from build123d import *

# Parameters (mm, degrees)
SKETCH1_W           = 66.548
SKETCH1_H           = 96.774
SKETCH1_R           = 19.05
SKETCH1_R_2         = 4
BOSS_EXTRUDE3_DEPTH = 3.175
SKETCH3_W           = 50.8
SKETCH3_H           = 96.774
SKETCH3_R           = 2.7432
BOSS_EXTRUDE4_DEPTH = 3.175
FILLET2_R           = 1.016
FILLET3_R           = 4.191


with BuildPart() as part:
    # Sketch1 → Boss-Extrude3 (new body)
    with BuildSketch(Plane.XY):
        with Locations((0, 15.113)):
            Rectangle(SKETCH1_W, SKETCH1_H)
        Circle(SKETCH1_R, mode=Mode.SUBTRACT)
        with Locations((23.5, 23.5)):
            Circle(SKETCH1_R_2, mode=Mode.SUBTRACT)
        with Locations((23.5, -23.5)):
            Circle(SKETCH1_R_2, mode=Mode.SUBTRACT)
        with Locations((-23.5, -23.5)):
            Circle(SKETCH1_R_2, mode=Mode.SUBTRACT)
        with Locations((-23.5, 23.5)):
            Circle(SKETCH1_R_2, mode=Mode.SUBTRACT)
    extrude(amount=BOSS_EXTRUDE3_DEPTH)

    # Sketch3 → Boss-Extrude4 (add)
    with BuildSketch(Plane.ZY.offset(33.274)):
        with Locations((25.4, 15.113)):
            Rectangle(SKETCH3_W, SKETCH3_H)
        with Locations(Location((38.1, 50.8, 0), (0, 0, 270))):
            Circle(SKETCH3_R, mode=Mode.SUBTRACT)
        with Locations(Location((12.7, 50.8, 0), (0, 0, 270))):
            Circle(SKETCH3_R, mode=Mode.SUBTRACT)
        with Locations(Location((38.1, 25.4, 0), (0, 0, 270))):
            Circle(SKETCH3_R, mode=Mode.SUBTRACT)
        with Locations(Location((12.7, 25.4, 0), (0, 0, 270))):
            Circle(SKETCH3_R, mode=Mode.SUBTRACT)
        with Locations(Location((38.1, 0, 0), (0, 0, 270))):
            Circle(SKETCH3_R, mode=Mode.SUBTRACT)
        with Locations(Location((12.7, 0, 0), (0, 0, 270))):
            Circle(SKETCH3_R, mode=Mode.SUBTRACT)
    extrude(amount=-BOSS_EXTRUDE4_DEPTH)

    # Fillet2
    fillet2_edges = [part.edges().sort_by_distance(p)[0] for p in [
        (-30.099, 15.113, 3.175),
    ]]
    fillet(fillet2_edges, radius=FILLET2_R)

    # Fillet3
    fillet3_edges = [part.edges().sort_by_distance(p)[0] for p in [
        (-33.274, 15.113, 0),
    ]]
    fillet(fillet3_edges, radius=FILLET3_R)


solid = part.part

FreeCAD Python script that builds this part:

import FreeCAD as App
import Part
import Sketcher
Q = App.Units.Quantity


def edges_at(feature, points):
    """Names of the edges that pass closest to the given points."""
    edges = feature.Shape.Edges
    near = lambda p: min(range(len(edges)), key=lambda i: edges[i].distToShape(Part.Vertex(*p))[0])
    return sorted({f"Edge{near(p) + 1}" for p in points})

doc = App.newDocument("Part")
body = doc.addObject("PartDesign::Body", "Body")

sketch1 = doc.addObject("Sketcher::SketchObject", "Sketch")
body.addObject(sketch1)
sketch1.AttachmentSupport = (doc.XY_Plane, [""])
sketch1.MapMode = "FlatFace"
sketch1.addGeometry(Part.LineSegment(App.Vector(-33.274, 63.5, 0), App.Vector(-33.274, -33.274, 0)), False)
sketch1.addGeometry(Part.LineSegment(App.Vector(-33.274, -33.274, 0), App.Vector(33.274, -33.274, 0)), False)
sketch1.addGeometry(Part.LineSegment(App.Vector(33.274, -33.274, 0), App.Vector(33.274, 63.5, 0)), False)
sketch1.addGeometry(Part.LineSegment(App.Vector(33.274, 63.5, 0), App.Vector(-33.274, 63.5, 0)), False)
sketch1.addGeometry(Part.Circle(App.Vector(-23.5, -23.5, 0), App.Vector(0, 0, 1), 4), False)
sketch1.addGeometry(Part.Circle(App.Vector(23.5, -23.5, 0), App.Vector(0, 0, 1), 4), False)
sketch1.addGeometry(Part.Circle(App.Vector(-23.5, 23.5, 0), App.Vector(0, 0, 1), 4), False)
sketch1.addGeometry(Part.Circle(App.Vector(0, 0, 0), App.Vector(0, 0, 1), 19.05), False)
sketch1.addGeometry(Part.Circle(App.Vector(23.5, 23.5, 0), App.Vector(0, 0, 1), 4), False)
sketch1.addConstraint(Sketcher.Constraint("Coincident", 0, 2, 1, 1))
sketch1.addConstraint(Sketcher.Constraint("Coincident", 1, 2, 2, 1))
sketch1.addConstraint(Sketcher.Constraint("Coincident", 2, 2, 3, 1))
sketch1.addConstraint(Sketcher.Constraint("Coincident", 3, 2, 0, 1))
sketch1.addConstraint(Sketcher.Constraint("Vertical", 0))
sketch1.addConstraint(Sketcher.Constraint("Horizontal", 1))
sketch1.addConstraint(Sketcher.Constraint("Vertical", 2))
sketch1.addConstraint(Sketcher.Constraint("Horizontal", 3))
sketch1.addConstraint(Sketcher.Constraint("Coincident", 7, 3, -1, 1))
sketch1.addConstraint(Sketcher.Constraint("Equal", 4, 5))
sketch1.addConstraint(Sketcher.Constraint("Equal", 5, 6))
sketch1.addConstraint(Sketcher.Constraint("Equal", 6, 8))
sketch1.addConstraint(Sketcher.Constraint("Symmetric", 5, 3, 6, 3, -1, 1))
sketch1.addConstraint(Sketcher.Constraint("Symmetric", 4, 3, 8, 3, -1, 1))
sketch1.addConstraint(Sketcher.Constraint("Symmetric", 4, 3, 5, 3, -2))
sketch1.addConstraint(Sketcher.Constraint("Diameter", 7, Q("1.5 in")))
sketch1.addConstraint(Sketcher.Constraint("DistanceX", 1, 1, 1, 2, Q("2.62 in")))
sketch1.addConstraint(Sketcher.Constraint("DistanceY", 0, 2, 0, 1, Q("3.81 in")))
sketch1.addConstraint(Sketcher.Constraint("DistanceY", -1, 1, 2, 2, Q("2.5 in")))
sketch1.addConstraint(Sketcher.Constraint("Diameter", 4, Q("8 mm")))
sketch1.addConstraint(Sketcher.Constraint("DistanceX", 0, 2, -1, 1, Q("1.31 in")))
sketch1.addConstraint(Sketcher.Constraint("DistanceX", 4, 3, -1, 1, Q("23.5 mm")))
sketch1.addConstraint(Sketcher.Constraint("DistanceY", 4, 3, -1, 1, Q("23.5 mm")))
pad1 = doc.addObject("PartDesign::Pad", "Pad")
body.addObject(pad1)
pad1.Profile = sketch1
pad1.Length = Q("0.125 in")

sketch2 = doc.addObject("Sketcher::SketchObject", "Sketch001")
body.addObject(sketch2)
sketch2.AttachmentSupport = (doc.YZ_Plane, [""])
sketch2.MapMode = "FlatFace"
sketch2.AttachmentOffset = App.Placement(App.Vector(0, 0, -1.31 * 25.4), App.Rotation())
sketch2.addGeometry(Part.LineSegment(App.Vector(63.5, 0, 0), App.Vector(-33.274, 0, 0)), False)
sketch2.addGeometry(Part.LineSegment(App.Vector(-33.274, 0, 0), App.Vector(-33.274, 50.8, 0)), False)
sketch2.addGeometry(Part.LineSegment(App.Vector(-33.274, 50.8, 0), App.Vector(63.5, 50.8, 0)), False)
sketch2.addGeometry(Part.LineSegment(App.Vector(63.5, 50.8, 0), App.Vector(63.5, 0, 0)), False)
sketch2.addGeometry(Part.Circle(App.Vector(0, 12.7, 0), App.Vector(0, 0, 1), 2.7432), False)
sketch2.addGeometry(Part.Circle(App.Vector(25.4, 12.7, 0), App.Vector(0, 0, 1), 2.7432), False)
sketch2.addGeometry(Part.Circle(App.Vector(0, 38.1, 0), App.Vector(0, 0, 1), 2.7432), False)
sketch2.addGeometry(Part.Circle(App.Vector(25.4, 38.1, 0), App.Vector(0, 0, 1), 2.7432), False)
sketch2.addGeometry(Part.Circle(App.Vector(50.8, 12.7, 0), App.Vector(0, 0, 1), 2.7432), False)
sketch2.addGeometry(Part.Circle(App.Vector(50.8, 38.1, 0), App.Vector(0, 0, 1), 2.7432), False)
sketch2.addConstraint(Sketcher.Constraint("Coincident", 0, 2, 1, 1))
sketch2.addConstraint(Sketcher.Constraint("Coincident", 1, 2, 2, 1))
sketch2.addConstraint(Sketcher.Constraint("Coincident", 2, 2, 3, 1))
sketch2.addConstraint(Sketcher.Constraint("Coincident", 3, 2, 0, 1))
sketch2.addConstraint(Sketcher.Constraint("Horizontal", 0))
sketch2.addConstraint(Sketcher.Constraint("Vertical", 1))
sketch2.addConstraint(Sketcher.Constraint("Horizontal", 2))
sketch2.addConstraint(Sketcher.Constraint("Vertical", 3))
sketch2.addConstraint(Sketcher.Constraint("Equal", 4, 5))
sketch2.addConstraint(Sketcher.Constraint("Equal", 5, 6))
sketch2.addConstraint(Sketcher.Constraint("Equal", 6, 7))
sketch2.addConstraint(Sketcher.Constraint("Equal", 7, 8))
sketch2.addConstraint(Sketcher.Constraint("Equal", 8, 9))
sketch2.addConstraint(Sketcher.Constraint("PointOnObject", 4, 3, -2))
sketch2.addConstraint(Sketcher.Constraint("PointOnObject", 6, 3, -2))
sketch2.addConstraint(Sketcher.Constraint("PointOnObject", 0, 2, -1))
sketch2.addConstraint(Sketcher.Constraint("Horizontal", 4, 3, 5, 3))
sketch2.addConstraint(Sketcher.Constraint("Horizontal", 6, 3, 7, 3))
sketch2.addConstraint(Sketcher.Constraint("Horizontal", 5, 3, 8, 3))
sketch2.addConstraint(Sketcher.Constraint("Horizontal", 7, 3, 9, 3))
sketch2.addConstraint(Sketcher.Constraint("Vertical", 5, 3, 7, 3))
sketch2.addConstraint(Sketcher.Constraint("Vertical", 8, 3, 9, 3))
sketch2.addConstraint(Sketcher.Constraint("DistanceY", 1, 1, 1, 2, Q("2 in")))
sketch2.addConstraint(Sketcher.Constraint("Diameter", 4, Q("0.216 in")))
sketch2.addConstraint(Sketcher.Constraint("DistanceX", -1, 1, 5, 3, Q("1 in")))
sketch2.addConstraint(Sketcher.Constraint("DistanceX", -1, 1, 8, 3, Q("2 in")))
sketch2.addConstraint(Sketcher.Constraint("DistanceY", 4, 3, 6, 3, Q("1 in")))
sketch2.addConstraint(Sketcher.Constraint("DistanceX", 0, 2, 0, 1, Q("3.81 in")))
sketch2.addConstraint(Sketcher.Constraint("DistanceY", -1, 1, 4, 3, Q("0.5 in")))
sketch2.addConstraint(Sketcher.Constraint("DistanceX", -1, 1, 2, 2, Q("2.5 in")))
pad2 = doc.addObject("PartDesign::Pad", "Pad001")
body.addObject(pad2)
pad2.Profile = sketch2
pad2.Length = Q("0.125 in")
doc.recompute()

fillet = doc.addObject("PartDesign::Fillet", "Fillet")
body.addObject(fillet)
fillet.Base = (pad2, edges_at(pad2, [(-30.099, 15.113, 3.175)]))
fillet.Radius = Q("0.04 in")
doc.recompute()

fillet2 = doc.addObject("PartDesign::Fillet", "Fillet001")
body.addObject(fillet2)
fillet2.Base = (fillet, edges_at(fillet, [(-33.274, 15.113, 0)]))
fillet2.Radius = Q("0.165 in")

doc.recompute()
